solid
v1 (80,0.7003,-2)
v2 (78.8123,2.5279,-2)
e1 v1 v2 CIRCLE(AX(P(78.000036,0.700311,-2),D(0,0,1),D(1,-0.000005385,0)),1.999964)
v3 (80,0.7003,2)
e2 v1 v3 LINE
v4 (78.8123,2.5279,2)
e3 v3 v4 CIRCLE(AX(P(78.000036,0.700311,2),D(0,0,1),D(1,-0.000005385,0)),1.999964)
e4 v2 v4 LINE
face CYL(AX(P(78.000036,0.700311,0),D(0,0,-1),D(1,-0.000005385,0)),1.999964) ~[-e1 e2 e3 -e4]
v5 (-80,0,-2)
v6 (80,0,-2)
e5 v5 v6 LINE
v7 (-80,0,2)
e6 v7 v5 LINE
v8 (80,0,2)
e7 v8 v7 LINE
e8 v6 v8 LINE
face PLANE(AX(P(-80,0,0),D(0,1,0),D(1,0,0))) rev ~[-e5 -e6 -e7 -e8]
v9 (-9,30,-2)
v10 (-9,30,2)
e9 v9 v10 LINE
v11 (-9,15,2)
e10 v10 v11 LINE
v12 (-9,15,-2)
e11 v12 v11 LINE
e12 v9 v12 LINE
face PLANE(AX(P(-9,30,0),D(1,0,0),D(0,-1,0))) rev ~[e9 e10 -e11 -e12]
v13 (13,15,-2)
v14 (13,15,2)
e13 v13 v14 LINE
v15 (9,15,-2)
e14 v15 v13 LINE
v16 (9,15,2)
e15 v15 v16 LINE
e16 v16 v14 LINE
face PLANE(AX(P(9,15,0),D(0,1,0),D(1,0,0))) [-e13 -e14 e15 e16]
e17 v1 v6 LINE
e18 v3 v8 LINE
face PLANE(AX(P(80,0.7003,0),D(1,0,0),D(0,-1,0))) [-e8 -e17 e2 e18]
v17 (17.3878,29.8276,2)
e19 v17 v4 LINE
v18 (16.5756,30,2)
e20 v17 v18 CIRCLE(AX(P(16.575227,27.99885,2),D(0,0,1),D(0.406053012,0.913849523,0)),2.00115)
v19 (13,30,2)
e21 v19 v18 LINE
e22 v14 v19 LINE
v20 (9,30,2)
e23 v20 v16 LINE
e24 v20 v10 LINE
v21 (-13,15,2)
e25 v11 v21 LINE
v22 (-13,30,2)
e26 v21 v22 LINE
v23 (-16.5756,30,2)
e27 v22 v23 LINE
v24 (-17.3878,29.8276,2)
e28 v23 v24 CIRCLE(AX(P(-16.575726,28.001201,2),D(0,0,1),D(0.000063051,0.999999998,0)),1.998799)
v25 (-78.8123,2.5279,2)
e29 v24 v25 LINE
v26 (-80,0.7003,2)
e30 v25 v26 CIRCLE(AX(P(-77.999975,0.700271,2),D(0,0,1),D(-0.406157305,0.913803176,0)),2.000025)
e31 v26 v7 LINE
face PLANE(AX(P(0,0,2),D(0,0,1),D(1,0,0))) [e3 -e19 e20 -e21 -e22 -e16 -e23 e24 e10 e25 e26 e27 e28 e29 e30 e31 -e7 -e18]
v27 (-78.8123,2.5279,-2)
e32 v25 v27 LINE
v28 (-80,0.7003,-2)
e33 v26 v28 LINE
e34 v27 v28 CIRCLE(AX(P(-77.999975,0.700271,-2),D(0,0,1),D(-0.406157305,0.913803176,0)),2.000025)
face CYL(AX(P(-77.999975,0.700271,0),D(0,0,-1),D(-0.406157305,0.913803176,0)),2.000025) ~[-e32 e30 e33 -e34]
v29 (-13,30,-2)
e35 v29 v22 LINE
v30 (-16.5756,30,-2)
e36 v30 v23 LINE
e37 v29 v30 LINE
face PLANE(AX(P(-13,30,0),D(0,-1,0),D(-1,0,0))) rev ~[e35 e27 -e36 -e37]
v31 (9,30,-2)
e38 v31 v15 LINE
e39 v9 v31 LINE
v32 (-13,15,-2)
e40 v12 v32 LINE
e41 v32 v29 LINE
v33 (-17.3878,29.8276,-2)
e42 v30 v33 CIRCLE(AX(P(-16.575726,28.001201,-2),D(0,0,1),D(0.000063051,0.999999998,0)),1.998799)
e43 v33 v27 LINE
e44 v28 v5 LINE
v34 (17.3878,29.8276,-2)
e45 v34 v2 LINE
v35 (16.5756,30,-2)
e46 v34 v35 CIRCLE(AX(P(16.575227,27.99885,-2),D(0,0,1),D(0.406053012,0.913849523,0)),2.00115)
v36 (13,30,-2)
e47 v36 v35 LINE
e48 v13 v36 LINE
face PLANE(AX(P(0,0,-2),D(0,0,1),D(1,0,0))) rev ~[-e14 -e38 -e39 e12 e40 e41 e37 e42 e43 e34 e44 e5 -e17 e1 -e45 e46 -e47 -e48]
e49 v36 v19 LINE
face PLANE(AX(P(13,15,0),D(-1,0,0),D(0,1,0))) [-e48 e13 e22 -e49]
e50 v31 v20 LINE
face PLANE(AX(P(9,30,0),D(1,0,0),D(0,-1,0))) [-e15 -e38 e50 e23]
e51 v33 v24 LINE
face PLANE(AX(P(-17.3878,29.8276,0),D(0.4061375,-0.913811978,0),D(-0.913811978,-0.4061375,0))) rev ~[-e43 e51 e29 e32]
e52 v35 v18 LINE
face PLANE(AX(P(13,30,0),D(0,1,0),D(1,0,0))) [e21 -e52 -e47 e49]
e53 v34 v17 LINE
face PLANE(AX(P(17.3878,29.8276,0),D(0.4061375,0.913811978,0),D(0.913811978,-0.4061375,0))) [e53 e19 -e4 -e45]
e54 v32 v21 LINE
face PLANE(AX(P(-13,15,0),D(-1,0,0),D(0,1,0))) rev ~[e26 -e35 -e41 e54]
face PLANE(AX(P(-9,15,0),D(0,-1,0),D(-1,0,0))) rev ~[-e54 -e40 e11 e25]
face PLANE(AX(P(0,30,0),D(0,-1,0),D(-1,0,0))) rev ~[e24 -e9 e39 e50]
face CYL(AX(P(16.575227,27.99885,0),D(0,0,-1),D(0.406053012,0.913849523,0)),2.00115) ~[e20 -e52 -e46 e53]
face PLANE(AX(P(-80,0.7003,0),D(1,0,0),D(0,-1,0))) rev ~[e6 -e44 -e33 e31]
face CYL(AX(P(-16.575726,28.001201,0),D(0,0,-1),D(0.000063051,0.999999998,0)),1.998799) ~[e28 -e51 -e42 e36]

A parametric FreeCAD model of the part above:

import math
import FreeCAD as App
import Part
import Sketcher
from FreeCAD import Vector
Q = App.Units.Quantity

doc = App.newDocument("Part")
body = doc.addObject("PartDesign::Body", "Body")

# Sketch on XY plane
sketch1 = body.newObject("Sketcher::SketchObject", "Sketch")
sketch1.AttachmentSupport = (doc.getObject("XY_Plane"), [""])
sketch1.MapMode = "FlatFace"
sketch1.addGeometry(Part.LineSegment(Vector(-80, 0, 0), Vector(80, 0, 0)), False)
sketch1.addGeometry(Part.LineSegment(Vector(80, 0, 0), Vector(80, 0.7003, 0)), False)
sketch1.addGeometry(Part.ArcOfCircle(Part.Circle(Vector(78, 0.7003, 0), Vector(0, 0, 1), 2), math.radians(0), math.radians(66.036638)), False)
sketch1.addGeometry(Part.LineSegment(Vector(78.8123, 2.5279, 0), Vector(17.3878, 29.8276, 0)), False)
sketch1.addGeometry(Part.ArcOfCircle(Part.Circle(Vector(16.575227, 27.99885, 0), Vector(0, 0, 1), 2.00115), math.radians(66.042869), math.radians(89.98932)), False)
sketch1.addGeometry(Part.LineSegment(Vector(16.5756, 30, 0), Vector(13, 30, 0)), False)
sketch1.addGeometry(Part.LineSegment(Vector(13, 30, 0), Vector(13, 15, 0)), False)
sketch1.addGeometry(Part.LineSegment(Vector(13, 15, 0), Vector(9, 15, 0)), False)
sketch1.addGeometry(Part.LineSegment(Vector(9, 15, 0), Vector(9, 30, 0)), False)
sketch1.addGeometry(Part.LineSegment(Vector(9, 30, 0), Vector(-9, 30, 0)), False)
sketch1.addGeometry(Part.LineSegment(Vector(-9, 30, 0), Vector(-9, 15, 0)), False)
sketch1.addGeometry(Part.LineSegment(Vector(-9, 15, 0), Vector(-13, 15, 0)), False)
sketch1.addGeometry(Part.LineSegment(Vector(-13, 15, 0), Vector(-13, 30, 0)), False)
sketch1.addGeometry(Part.LineSegment(Vector(-13, 30, 0), Vector(-16.5756, 30, 0)), False)
sketch1.addGeometry(Part.ArcOfCircle(Part.Circle(Vector(-16.575726, 28.001201, 0), Vector(0, 0, 1), 1.998799), math.radians(89.996387), math.radians(113.971424)), False)
sketch1.addGeometry(Part.LineSegment(Vector(-17.3878, 29.8276, 0), Vector(-78.8123, 2.5279, 0)), False)
sketch1.addGeometry(Part.ArcOfCircle(Part.Circle(Vector(-78, 0.7003, 0), Vector(0, 0, 1), 1.999988), math.radians(113.963362), math.radians(180)), False)
sketch1.addGeometry(Part.LineSegment(Vector(-80, 0.7003, 0), Vector(-80, 0, 0)), False)
sketch1.addConstraint(Sketcher.Constraint("Coincident", 0, 2, 1, 1))
sketch1.addConstraint(Sketcher.Constraint("Coincident", 1, 2, 2, 1))
sketch1.addConstraint(Sketcher.Constraint("Coincident", 2, 2, 3, 1))
sketch1.addConstraint(Sketcher.Constraint("Coincident", 3, 2, 4, 1))
sketch1.addConstraint(Sketcher.Constraint("Coincident", 4, 2, 5, 1))
sketch1.addConstraint(Sketcher.Constraint("Coincident", 5, 2, 6, 1))
sketch1.addConstraint(Sketcher.Constraint("Coincident", 6, 2, 7, 1))
sketch1.addConstraint(Sketcher.Constraint("Coincident", 7, 2, 8, 1))
sketch1.addConstraint(Sketcher.Constraint("Coincident", 8, 2, 9, 1))
sketch1.addConstraint(Sketcher.Constraint("Coincident", 9, 2, 10, 1))
sketch1.addConstraint(Sketcher.Constraint("Coincident", 10, 2, 11, 1))
sketch1.addConstraint(Sketcher.Constraint("Coincident", 11, 2, 12, 1))
sketch1.addConstraint(Sketcher.Constraint("Coincident", 12, 2, 13, 1))
sketch1.addConstraint(Sketcher.Constraint("Coincident", 13, 2, 14, 1))
sketch1.addConstraint(Sketcher.Constraint("Coincident", 14, 2, 15, 1))
sketch1.addConstraint(Sketcher.Constraint("Coincident", 15, 2, 16, 1))
sketch1.addConstraint(Sketcher.Constraint("Coincident", 16, 2, 17, 1))
sketch1.addConstraint(Sketcher.Constraint("Coincident", 17, 2, 0, 1))
sketch1.addConstraint(Sketcher.Constraint("Horizontal", 0))
sketch1.addConstraint(Sketcher.Constraint("Vertical", 1))
sketch1.addConstraint(Sketcher.Constraint("Horizontal", 5))
sketch1.addConstraint(Sketcher.Constraint("Vertical", 6))
sketch1.addConstraint(Sketcher.Constraint("Horizontal", 7))
sketch1.addConstraint(Sketcher.Constraint("Vertical", 8))
sketch1.addConstraint(Sketcher.Constraint("Horizontal", 9))
sketch1.addConstraint(Sketcher.Constraint("Vertical", 10))
sketch1.addConstraint(Sketcher.Constraint("Horizontal", 11))
sketch1.addConstraint(Sketcher.Constraint("Vertical", 12))
sketch1.addConstraint(Sketcher.Constraint("Horizontal", 13))
sketch1.addConstraint(Sketcher.Constraint("Vertical", 17))
sketch1.addConstraint(Sketcher.Constraint("PointOnObject", 0, 2, -1))
sketch1.addConstraint(Sketcher.Constraint("Radius", 2, Q("2 mm")))
sketch1.addConstraint(Sketcher.Constraint("Radius", 16, Q("2 mm")))
sketch1.addConstraint(Sketcher.Constraint("DistanceX", 7, 2, 7, 1, Q("4 mm")))
sketch1.addConstraint(Sketcher.Constraint("DistanceX", 11, 2, 11, 1, Q("4 mm")))
sketch1.addConstraint(Sketcher.Constraint("DistanceY", 6, 2, 6, 1, Q("15 mm")))
sketch1.addConstraint(Sketcher.Constraint("DistanceY", 8, 1, 8, 2, Q("15 mm")))
sketch1.addConstraint(Sketcher.Constraint("DistanceY", 10, 2, 10, 1, Q("15 mm")))
sketch1.addConstraint(Sketcher.Constraint("DistanceY", 12, 1, 12, 2, Q("15 mm")))
sketch1.addConstraint(Sketcher.Constraint("DistanceX", -1, 1, 0, 2, Q("80 mm")))
sketch1.addConstraint(Sketcher.Constraint("DistanceY", -1, 1, 6, 2, Q("15 mm")))
sketch1.addConstraint(Sketcher.Constraint("DistanceX", -1, 1, 7, 2, Q("9 mm")))
sketch1.addConstraint(Sketcher.Constraint("DistanceX", 9, 2, -1, 1, Q("9 mm")))
sketch1.addConstraint(Sketcher.Constraint("DistanceX", 16, 2, -1, 1, Q("80 mm")))
sketch1.addConstraint(Sketcher.Constraint("Radius", 4, Q("2.0012 mm")))
sketch1.addConstraint(Sketcher.Constraint("Radius", 14, Q("1.9988 mm")))
sketch1.addConstraint(Sketcher.Constraint("DistanceX", 5, 2, 5, 1, Q("3.5756 mm")))
sketch1.addConstraint(Sketcher.Constraint("DistanceX", 13, 2, 13, 1, Q("3.5756 mm")))
sketch1.addConstraint(Sketcher.Constraint("DistanceY", 1, 1, 1, 2, Q("0.7003 mm")))
sketch1.addConstraint(Sketcher.Constraint("DistanceY", 17, 2, 17, 1, Q("0.7003 mm")))
sketch1.addConstraint(Sketcher.Constraint("DistanceY", -1, 1, 2, 2, Q("2.528 mm")))
sketch1.addConstraint(Sketcher.Constraint("DistanceY", -1, 1, 15, 2, Q("2.528 mm")))
sketch1.addConstraint(Sketcher.Constraint("DistanceX", 14, 3, 4, 3, Q("33.151 mm")))
sketch1.addConstraint(Sketcher.Constraint("DistanceY", 2, 3, 14, 3, Q("27.301 mm")))
sketch1.addConstraint(Sketcher.Constraint("DistanceY", 16, 3, 14, 3, Q("27.301 mm")))
sketch1.addConstraint(Sketcher.Constraint("DistanceX", 4, 3, 2, 2, Q("62.237 mm")))
sketch1.addConstraint(Sketcher.Constraint("DistanceX", 14, 2, 14, 3, Q("0.812 mm")))
sketch1.addConstraint(Sketcher.Constraint("Distance", 3, Q("67.2179 mm")))
pad1 = body.newObject("PartDesign::Pad", "Pad")
pad1.Profile = sketch1
pad1.Length = 4
pad1.Midplane = True

doc.recompute()
